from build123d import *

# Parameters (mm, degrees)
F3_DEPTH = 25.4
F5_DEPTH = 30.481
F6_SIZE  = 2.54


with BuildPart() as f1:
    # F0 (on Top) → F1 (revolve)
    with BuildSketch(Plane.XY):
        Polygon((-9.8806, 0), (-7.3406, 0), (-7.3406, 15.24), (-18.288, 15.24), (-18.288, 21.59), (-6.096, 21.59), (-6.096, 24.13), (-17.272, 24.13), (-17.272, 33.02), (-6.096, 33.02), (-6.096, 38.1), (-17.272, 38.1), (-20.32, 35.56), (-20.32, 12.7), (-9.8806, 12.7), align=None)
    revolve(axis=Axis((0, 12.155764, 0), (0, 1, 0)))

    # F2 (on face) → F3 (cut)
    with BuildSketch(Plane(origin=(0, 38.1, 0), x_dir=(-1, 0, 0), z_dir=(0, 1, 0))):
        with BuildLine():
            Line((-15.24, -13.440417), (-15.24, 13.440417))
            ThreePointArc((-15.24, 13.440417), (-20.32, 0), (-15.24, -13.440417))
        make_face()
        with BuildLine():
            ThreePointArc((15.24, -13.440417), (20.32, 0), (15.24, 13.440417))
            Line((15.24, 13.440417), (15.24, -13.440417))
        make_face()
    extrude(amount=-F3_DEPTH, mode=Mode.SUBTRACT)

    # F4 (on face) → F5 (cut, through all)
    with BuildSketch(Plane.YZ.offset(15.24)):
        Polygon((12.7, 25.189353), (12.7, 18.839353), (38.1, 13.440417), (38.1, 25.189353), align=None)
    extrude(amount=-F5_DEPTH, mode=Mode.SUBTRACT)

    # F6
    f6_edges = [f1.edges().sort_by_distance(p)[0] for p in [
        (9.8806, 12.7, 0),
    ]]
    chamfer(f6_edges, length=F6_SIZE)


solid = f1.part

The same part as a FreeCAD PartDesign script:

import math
import FreeCAD as App
import Part
import Sketcher
Q = App.Units.Quantity


def edges_at(feature, points):
    """Names of the edges that pass closest to the given points."""
    edges = feature.Shape.Edges
    near = lambda p: min(range(len(edges)), key=lambda i: edges[i].distToShape(Part.Vertex(*p))[0])
    return sorted({f"Edge{near(p) + 1}" for p in points})


def add_polygon(sketch, points):
    """Adds a closed chain of lines whose ends are joined by coincident constraints."""
    first, n = sketch.GeometryCount, len(points)
    for a, b in zip(points, points[1:] + points[:1]):
        sketch.addGeometry(Part.LineSegment(App.Vector(*a, 0), App.Vector(*b, 0)), False)
    for i in range(n):
        sketch.addConstraint(Sketcher.Constraint("Coincident", first + i, 2, first + (i + 1) % n, 1))

doc = App.newDocument("Part")
body = doc.addObject("PartDesign::Body", "Body")

# Sketch on XY plane
sketch1 = doc.addObject("Sketcher::SketchObject", "Sketch")
body.addObject(sketch1)
sketch1.AttachmentSupport = (doc.XY_Plane, [""])
sketch1.MapMode = "FlatFace"
add_polygon(sketch1, [(-9.9, 0), (-7.3, 0), (-7.3, 15.2), (-18.3, 15.2), (-18.3, 21.6), (-6.1, 21.6), (-6.1, 24.1), (-17.3, 24.1), (-17.3, 33), (-6.1, 33), (-6.1, 38.1), (-17.3, 38.1), (-20.3, 35.6), (-20.3, 12.7), (-9.9, 12.7)])  # lines 0-14
sketch1.addConstraint([
    Sketcher.Constraint("Horizontal", 0),
    Sketcher.Constraint("Vertical", 1),
    Sketcher.Constraint("Horizontal", 2),
    Sketcher.Constraint("Vertical", 3),
    Sketcher.Constraint("Horizontal", 4),
    Sketcher.Constraint("Vertical", 5),
    Sketcher.Constraint("Horizontal", 6),
    Sketcher.Constraint("Vertical", 7),
    Sketcher.Constraint("Horizontal", 8),
    Sketcher.Constraint("Vertical", 9),
    Sketcher.Constraint("Horizontal", 10),
    Sketcher.Constraint("Vertical", 12),
    Sketcher.Constraint("Horizontal", 13),
    Sketcher.Constraint("Vertical", 14),
    Sketcher.Constraint("PointOnObject", 0, 2, -1),
    Sketcher.Constraint("Vertical", 5, 2, 8, 2),
    Sketcher.Constraint("Vertical", 7, 2, 10, 2),
    Sketcher.Constraint("Equal", 0, 5),
    Sketcher.Constraint("DistanceX", 0, 1, 0, 2, Q("0.1 in")),
    Sketcher.Constraint("DistanceY", 1, 1, 1, 2, Q("0.6 in")),
    Sketcher.Constraint("DistanceY", 9, 1, 9, 2, Q("0.2 in")),
    Sketcher.Constraint("DistanceY", 12, 2, 12, 1, Q("0.9 in")),
    Sketcher.Constraint("DistanceY", 14, 2, 14, 1, Q("0.5 in")),
    Sketcher.Constraint("DistanceX", 4, 1, 4, 2, Q("0.48 in")),
    Sketcher.Constraint("DistanceX", 6, 2, 6, 1, Q("0.44 in")),
    Sketcher.Constraint("DistanceY", 3, 1, 3, 2, Q("0.25 in")),
    Sketcher.Constraint("DistanceY", 7, 1, 7, 2, Q("0.35 in")),
    Sketcher.Constraint("DistanceX", 11, 2, -1, 1, Q("0.8 in")),
    Sketcher.Constraint("DistanceX", 2, 2, 2, 1, Q("0.431 in")),
    Sketcher.Constraint("DistanceX", 13, 1, 13, 2, Q("0.411 in")),
])
revolution = doc.addObject("PartDesign::Revolution", "Revolution")
body.addObject(revolution)
revolution.Profile = sketch1
revolution.ReferenceAxis = (sketch1, ["V_Axis"])
revolution.Angle = 360

# Sketch on XZ plane
sketch2 = doc.addObject("Sketcher::SketchObject", "Sketch001")
body.addObject(sketch2)
sketch2.AttachmentSupport = (doc.XZ_Plane, [""])
sketch2.MapMode = "FlatFace"
sketch2.AttachmentOffset = App.Placement(App.Vector(0, 0, -1.5 * 25.4), App.Rotation())
sketch2.addGeometry([
    Part.LineSegment(App.Vector(15, -13, 0), App.Vector(15, 13, 0)),
    Part.ArcOfCircle(Part.Circle(App.Vector(0, 0, 0), App.Vector(0, 0, 1), 20), math.radians(-41), math.radians(41)),
    Part.ArcOfCircle(Part.Circle(App.Vector(0, 0, 0), App.Vector(0, 0, 1), 20), math.radians(139), math.radians(221)),
    Part.LineSegment(App.Vector(-15, 13, 0), App.Vector(-15, -13, 0)),
], False)
sketch2.addConstraint([
    Sketcher.Constraint("Coincident", 0, 1, 1, 1),
    Sketcher.Constraint("Coincident", 1, 2, 0, 2),
    Sketcher.Constraint("Coincident", 2, 1, 3, 1),
    Sketcher.Constraint("Coincident", 3, 2, 2, 2),
    Sketcher.Constraint("Vertical", 0),
    Sketcher.Constraint("Vertical", 3),
    Sketcher.Constraint("Coincident", 1, 3, -1, 1),
    Sketcher.Constraint("Coincident", 2, 3, -1, 1),
    Sketcher.Constraint("Equal", 1, 2),
    Sketcher.Constraint("Horizontal", 1, 2, 2, 1),
    Sketcher.Constraint("Radius", 1, Q("0.8 in")),
    Sketcher.Constraint("DistanceX", -1, 1, 0, 1, Q("0.6 in")),
])
pocket1 = doc.addObject("PartDesign::Pocket", "Pocket")
body.addObject(pocket1)
pocket1.Profile = sketch2
pocket1.Length = Q("1 in")
pocket1.Reversed = True

# Sketch on YZ plane
sketch3 = doc.addObject("Sketcher::SketchObject", "Sketch002")
body.addObject(sketch3)
sketch3.AttachmentSupport = (doc.YZ_Plane, [""])
sketch3.MapMode = "FlatFace"
sketch3.AttachmentOffset = App.Placement(App.Vector(0, 0, 0.6 * 25.4), App.Rotation())
add_polygon(sketch3, [(13, 25), (13, 19), (38, 13), (38, 25)])  # lines 0-3
sketch3.addConstraint([
    Sketcher.Constraint("Vertical", 0),
    Sketcher.Constraint("Vertical", 2),
    Sketcher.Constraint("Horizontal", 3),
    Sketcher.Constraint("DistanceX", 3, 2, 3, 1, Q("1 in")),
    Sketcher.Constraint("Angle", 1, Q("-11.999999 deg")),
    Sketcher.Constraint("DistanceY", 0, 2, 0, 1, Q("0.25 in")),
    Sketcher.Constraint("DistanceX", -1, 1, 0, 2, Q("0.5 in")),
    Sketcher.Constraint("DistanceY", -1, 1, 0, 2, 18.839353),
])
pocket2 = doc.addObject("PartDesign::Pocket", "Pocket001")
body.addObject(pocket2)
pocket2.Profile = sketch3
pocket2.Type = "ThroughAll"
doc.recompute()

chamfer = doc.addObject("PartDesign::Chamfer", "Chamfer")
body.addObject(chamfer)
chamfer.Base = (pocket2, edges_at(pocket2, [(9.881, 12.7, 0)]))
chamfer.Size = Q("0.1 in")

doc.recompute()
